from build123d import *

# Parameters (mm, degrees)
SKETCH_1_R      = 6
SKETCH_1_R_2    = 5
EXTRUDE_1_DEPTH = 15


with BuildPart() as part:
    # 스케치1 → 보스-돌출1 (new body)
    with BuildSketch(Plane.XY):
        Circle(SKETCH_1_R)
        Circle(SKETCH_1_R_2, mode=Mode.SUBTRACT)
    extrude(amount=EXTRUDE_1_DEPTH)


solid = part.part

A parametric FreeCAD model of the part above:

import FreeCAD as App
import Part
import Sketcher
Q = App.Units.Quantity

doc = App.newDocument("Part")
body = doc.addObject("PartDesign::Body", "Body")

# Sketch on XY plane
sketch1 = body.newObject("Sketcher::SketchObject", "Sketch")
sketch1.AttachmentSupport = (doc.getObject("XY_Plane"), [""])
sketch1.MapMode = "FlatFace"
sketch1.addGeometry(Part.Circle(App.Vector(0, 0, 0), App.Vector(0, 0, 1), 6), False)
sketch1.addGeometry(Part.Circle(App.Vector(0, 0, 0), App.Vector(0, 0, 1), 5), False)
sketch1.addConstraint(Sketcher.Constraint("Coincident", 0, 3, -1, 1))
sketch1.addConstraint(Sketcher.Constraint("Coincident", 1, 3, -1, 1))
sketch1.addConstraint(Sketcher.Constraint("Diameter", 0, Q("12 mm")))
sketch1.addConstraint(Sketcher.Constraint("Diameter", 1, Q("10 mm")))
pad1 = body.newObject("PartDesign::Pad", "Pad")
pad1.Profile = sketch1
pad1.Length = 15

doc.recompute()
